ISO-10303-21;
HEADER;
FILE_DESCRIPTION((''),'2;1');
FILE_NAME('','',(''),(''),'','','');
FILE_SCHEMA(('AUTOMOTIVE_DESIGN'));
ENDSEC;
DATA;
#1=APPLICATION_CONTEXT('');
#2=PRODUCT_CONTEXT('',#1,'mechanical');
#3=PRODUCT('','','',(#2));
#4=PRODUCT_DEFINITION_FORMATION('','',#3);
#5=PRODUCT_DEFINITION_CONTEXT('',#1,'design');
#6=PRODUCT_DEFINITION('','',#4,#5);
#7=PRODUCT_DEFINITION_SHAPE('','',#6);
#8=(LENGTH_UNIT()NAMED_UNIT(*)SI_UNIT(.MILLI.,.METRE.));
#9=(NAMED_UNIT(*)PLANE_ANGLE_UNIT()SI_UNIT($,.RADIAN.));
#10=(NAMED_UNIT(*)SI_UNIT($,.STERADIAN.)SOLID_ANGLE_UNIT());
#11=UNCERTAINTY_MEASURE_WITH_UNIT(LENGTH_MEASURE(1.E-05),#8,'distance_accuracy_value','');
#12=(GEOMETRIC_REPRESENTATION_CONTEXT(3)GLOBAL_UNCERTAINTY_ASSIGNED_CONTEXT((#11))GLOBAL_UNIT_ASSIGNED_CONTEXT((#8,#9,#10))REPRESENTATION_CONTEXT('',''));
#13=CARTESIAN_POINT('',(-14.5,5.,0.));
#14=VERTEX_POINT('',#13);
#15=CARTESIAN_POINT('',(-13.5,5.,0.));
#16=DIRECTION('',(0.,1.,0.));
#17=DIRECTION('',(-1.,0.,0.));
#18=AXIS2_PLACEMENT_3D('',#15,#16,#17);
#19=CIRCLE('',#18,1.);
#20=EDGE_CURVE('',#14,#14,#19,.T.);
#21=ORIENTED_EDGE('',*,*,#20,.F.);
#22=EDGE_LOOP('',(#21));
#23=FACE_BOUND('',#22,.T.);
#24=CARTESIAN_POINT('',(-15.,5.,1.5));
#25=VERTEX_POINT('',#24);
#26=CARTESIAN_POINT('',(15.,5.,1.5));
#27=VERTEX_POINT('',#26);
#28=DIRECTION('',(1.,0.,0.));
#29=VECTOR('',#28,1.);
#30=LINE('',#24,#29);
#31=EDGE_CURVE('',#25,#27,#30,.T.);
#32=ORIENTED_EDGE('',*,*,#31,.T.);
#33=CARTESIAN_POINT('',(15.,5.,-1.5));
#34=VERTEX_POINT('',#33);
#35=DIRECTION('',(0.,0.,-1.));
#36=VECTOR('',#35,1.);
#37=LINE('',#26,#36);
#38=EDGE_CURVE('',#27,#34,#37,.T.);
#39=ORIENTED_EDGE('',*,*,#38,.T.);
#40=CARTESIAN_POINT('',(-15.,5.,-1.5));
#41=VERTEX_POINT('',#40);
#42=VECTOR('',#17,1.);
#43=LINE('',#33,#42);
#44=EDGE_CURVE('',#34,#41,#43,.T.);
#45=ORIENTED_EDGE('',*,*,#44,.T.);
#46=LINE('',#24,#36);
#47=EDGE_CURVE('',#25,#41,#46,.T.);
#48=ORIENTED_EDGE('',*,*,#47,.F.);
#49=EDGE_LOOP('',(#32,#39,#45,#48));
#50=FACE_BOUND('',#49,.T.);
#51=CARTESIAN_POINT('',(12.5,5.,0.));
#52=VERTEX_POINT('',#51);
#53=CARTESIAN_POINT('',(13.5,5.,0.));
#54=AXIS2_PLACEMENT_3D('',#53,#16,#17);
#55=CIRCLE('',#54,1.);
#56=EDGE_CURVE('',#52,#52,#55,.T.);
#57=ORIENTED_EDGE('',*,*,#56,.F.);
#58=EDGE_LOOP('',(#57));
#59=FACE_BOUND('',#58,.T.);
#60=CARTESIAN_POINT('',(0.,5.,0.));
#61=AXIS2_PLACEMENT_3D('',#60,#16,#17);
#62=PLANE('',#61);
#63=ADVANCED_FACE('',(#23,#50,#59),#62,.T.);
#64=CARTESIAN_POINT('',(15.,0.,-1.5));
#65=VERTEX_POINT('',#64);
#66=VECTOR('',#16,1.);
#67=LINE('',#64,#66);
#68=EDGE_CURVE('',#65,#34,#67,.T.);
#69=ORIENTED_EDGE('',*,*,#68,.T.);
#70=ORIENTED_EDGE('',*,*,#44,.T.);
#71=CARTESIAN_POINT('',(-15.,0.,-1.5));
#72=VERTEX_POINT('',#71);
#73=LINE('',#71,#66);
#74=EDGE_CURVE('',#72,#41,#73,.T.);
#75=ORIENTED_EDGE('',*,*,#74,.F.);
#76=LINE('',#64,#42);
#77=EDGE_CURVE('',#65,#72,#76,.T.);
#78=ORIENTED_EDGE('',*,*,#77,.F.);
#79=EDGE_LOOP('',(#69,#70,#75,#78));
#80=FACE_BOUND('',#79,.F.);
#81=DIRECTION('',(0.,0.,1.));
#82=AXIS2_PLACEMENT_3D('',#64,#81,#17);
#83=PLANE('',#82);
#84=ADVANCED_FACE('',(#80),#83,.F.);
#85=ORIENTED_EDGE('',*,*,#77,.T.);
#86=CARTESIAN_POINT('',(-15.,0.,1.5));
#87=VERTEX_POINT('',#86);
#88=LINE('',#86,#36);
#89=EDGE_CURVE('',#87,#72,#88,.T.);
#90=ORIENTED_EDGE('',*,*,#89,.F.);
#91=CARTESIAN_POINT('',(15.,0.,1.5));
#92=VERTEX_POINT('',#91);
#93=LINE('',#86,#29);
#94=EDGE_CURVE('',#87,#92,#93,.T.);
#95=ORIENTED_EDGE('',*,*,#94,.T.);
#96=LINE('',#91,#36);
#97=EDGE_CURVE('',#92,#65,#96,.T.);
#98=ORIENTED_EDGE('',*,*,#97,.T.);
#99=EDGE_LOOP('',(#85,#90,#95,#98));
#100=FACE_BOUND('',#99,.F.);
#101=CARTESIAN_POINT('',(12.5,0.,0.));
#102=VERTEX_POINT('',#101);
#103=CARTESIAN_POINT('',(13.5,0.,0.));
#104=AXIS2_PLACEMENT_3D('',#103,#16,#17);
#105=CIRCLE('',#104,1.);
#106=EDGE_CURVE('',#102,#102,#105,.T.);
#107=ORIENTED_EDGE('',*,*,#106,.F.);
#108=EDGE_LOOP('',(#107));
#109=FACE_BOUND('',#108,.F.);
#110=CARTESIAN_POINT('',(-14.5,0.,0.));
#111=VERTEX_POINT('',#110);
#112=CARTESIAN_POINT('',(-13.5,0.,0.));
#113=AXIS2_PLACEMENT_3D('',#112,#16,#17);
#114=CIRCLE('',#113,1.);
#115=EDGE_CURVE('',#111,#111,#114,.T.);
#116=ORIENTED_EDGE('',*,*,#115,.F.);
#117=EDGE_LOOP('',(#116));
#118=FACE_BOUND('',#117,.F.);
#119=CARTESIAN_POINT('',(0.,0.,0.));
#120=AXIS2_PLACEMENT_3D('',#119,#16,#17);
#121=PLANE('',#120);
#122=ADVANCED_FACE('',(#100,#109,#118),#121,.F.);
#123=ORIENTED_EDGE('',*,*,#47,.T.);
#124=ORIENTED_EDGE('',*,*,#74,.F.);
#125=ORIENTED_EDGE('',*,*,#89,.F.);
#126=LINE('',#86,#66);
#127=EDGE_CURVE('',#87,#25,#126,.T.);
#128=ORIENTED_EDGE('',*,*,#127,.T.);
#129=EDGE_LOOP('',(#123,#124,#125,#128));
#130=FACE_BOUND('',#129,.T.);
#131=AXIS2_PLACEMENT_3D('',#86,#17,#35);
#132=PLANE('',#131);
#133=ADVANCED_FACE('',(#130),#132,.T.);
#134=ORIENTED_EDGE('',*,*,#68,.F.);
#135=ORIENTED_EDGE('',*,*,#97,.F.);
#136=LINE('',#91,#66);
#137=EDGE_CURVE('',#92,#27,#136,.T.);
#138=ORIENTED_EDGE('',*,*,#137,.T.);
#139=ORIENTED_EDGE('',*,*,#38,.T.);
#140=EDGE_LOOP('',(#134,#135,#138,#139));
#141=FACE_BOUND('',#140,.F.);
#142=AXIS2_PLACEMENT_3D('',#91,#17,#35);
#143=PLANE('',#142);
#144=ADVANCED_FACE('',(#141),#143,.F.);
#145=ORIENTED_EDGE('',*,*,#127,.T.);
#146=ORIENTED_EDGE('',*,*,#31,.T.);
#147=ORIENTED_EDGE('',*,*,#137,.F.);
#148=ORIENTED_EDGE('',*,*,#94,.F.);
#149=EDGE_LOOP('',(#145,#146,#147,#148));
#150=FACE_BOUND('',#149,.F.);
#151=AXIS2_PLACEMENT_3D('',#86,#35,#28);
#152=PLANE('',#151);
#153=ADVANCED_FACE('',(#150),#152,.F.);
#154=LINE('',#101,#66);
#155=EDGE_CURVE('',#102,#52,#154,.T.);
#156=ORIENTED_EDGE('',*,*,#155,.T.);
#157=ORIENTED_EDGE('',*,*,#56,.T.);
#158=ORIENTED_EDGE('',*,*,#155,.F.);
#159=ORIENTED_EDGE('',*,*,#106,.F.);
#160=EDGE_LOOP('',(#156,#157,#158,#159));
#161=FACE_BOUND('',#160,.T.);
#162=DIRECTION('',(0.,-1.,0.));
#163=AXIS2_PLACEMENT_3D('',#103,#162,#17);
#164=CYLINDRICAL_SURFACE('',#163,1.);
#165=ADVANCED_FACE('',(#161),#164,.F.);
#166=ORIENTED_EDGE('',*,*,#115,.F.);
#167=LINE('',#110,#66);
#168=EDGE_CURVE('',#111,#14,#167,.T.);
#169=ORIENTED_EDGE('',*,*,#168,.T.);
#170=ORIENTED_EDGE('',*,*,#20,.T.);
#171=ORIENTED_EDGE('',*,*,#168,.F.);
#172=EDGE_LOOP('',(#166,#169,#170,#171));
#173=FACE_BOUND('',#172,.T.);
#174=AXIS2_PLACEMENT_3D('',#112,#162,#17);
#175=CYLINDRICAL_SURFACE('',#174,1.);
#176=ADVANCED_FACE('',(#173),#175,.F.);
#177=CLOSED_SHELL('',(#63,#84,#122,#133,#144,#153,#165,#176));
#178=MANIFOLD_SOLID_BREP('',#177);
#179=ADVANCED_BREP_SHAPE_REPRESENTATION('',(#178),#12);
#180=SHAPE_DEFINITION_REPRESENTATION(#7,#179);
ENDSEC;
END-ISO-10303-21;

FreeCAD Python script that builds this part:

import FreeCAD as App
import Part
import Sketcher


def add_polygon(sketch, points):
    """Adds a closed chain of lines whose ends are joined by coincident constraints."""
    first, n = sketch.GeometryCount, len(points)
    for a, b in zip(points, points[1:] + points[:1]):
        sketch.addGeometry(Part.LineSegment(App.Vector(*a, 0), App.Vector(*b, 0)), False)
    for i in range(n):
        sketch.addConstraint(Sketcher.Constraint("Coincident", first + i, 2, first + (i + 1) % n, 1))

doc = App.newDocument("Part")
body = doc.addObject("PartDesign::Body", "Body")

# Sketch on XZ plane
sketch1 = body.newObject("Sketcher::SketchObject", "Sketch")
sketch1.AttachmentSupport = (doc.getObject("XZ_Plane"), [""])
sketch1.MapMode = "FlatFace"
add_polygon(sketch1, [(15, 1.5), (15, -1.5), (-15, -1.5), (-15, 1.5)])  # lines 0-3
sketch1.addGeometry(Part.Circle(App.Vector(13.5, 0, 0), App.Vector(0, 0, 1), 1), False)  # 4
sketch1.addGeometry(Part.Circle(App.Vector(-13.5, 0, 0), App.Vector(0, 0, 1), 1), False)  # 5
sketch1.addConstraint([
    Sketcher.Constraint("Vertical", 0),
    Sketcher.Constraint("Horizontal", 1),
    Sketcher.Constraint("Vertical", 2),
    Sketcher.Constraint("Horizontal", 3),
    Sketcher.Constraint("Equal", 4, 5),
    Sketcher.Constraint("Symmetric", 4, 3, 5, 3, -1, 1),
    Sketcher.Constraint("Symmetric", 0, 2, 2, 2, -1, 1),
    Sketcher.Constraint("PointOnObject", 4, 3, -1),
    Sketcher.Constraint("Diameter", 4, 2.0),
    Sketcher.Constraint("DistanceX", 1, 2, 1, 1, 30.0),
    Sketcher.Constraint("DistanceY", 0, 2, 0, 1, 3.0),
    Sketcher.Constraint("DistanceX", 4, 3, 0, 2, 1.5),
])
pad1 = body.newObject("PartDesign::Pad", "Pad")
pad1.Profile = sketch1
pad1.Length = 5
pad1.Reversed = True

doc.recompute()
